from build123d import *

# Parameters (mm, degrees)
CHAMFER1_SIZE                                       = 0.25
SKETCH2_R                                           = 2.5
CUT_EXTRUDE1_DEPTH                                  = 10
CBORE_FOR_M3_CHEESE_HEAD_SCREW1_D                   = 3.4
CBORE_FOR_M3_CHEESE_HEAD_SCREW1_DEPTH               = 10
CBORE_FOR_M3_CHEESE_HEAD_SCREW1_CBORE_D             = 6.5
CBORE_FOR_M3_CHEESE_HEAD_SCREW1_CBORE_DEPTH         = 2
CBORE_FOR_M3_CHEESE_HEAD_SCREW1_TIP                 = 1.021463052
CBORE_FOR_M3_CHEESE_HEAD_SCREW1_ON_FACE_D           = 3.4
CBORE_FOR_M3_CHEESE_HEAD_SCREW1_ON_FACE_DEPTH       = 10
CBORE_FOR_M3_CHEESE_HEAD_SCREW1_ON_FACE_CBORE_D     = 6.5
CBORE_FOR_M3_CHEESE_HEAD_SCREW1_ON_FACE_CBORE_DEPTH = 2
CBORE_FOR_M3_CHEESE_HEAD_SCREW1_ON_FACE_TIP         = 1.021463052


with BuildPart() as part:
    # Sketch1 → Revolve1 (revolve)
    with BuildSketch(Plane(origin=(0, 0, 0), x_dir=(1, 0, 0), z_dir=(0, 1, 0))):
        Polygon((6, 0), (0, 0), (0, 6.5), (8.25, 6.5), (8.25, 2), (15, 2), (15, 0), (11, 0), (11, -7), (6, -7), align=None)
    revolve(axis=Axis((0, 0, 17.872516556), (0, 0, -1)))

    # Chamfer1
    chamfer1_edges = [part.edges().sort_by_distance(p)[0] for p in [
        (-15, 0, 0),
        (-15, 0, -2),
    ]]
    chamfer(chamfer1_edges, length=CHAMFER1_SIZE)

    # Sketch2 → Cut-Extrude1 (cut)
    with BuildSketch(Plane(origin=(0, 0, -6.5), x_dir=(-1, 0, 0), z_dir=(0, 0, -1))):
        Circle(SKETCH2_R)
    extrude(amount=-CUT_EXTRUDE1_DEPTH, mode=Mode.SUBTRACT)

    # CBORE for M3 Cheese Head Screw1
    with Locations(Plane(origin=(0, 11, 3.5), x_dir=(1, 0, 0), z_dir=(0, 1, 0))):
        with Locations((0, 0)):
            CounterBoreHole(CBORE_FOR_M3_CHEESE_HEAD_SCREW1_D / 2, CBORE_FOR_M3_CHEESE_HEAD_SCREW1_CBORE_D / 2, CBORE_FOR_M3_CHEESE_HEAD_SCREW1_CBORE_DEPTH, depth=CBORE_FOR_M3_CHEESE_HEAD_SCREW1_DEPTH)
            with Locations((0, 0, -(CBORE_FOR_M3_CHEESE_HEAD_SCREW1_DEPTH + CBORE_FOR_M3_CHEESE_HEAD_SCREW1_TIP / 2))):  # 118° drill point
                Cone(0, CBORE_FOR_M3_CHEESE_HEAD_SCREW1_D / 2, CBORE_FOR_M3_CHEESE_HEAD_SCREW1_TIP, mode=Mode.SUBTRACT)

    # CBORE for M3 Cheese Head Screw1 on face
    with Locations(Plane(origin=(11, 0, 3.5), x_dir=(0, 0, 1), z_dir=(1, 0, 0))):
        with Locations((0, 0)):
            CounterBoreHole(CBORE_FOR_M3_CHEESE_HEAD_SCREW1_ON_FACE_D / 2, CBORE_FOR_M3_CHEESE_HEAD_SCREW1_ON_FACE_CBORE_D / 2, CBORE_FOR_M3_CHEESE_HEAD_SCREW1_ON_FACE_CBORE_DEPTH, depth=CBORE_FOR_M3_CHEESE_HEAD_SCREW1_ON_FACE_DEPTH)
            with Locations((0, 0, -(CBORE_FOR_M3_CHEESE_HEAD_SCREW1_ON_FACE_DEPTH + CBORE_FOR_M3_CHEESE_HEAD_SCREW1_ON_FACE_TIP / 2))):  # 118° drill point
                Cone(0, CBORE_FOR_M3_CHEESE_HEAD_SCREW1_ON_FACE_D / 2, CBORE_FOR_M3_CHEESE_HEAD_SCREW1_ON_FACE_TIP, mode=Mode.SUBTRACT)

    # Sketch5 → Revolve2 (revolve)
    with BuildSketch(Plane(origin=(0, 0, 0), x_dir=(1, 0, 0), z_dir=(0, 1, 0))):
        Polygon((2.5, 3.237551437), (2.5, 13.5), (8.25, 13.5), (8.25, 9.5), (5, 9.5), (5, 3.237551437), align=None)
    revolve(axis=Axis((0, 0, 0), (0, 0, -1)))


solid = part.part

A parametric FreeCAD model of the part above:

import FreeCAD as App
import Part
import Sketcher


def edges_at(feature, points):
    """Names of the edges that pass closest to the given points."""
    edges = feature.Shape.Edges
    near = lambda p: min(range(len(edges)), key=lambda i: edges[i].distToShape(Part.Vertex(*p))[0])
    return sorted({f"Edge{near(p) + 1}" for p in points})

doc = App.newDocument("Part")
body = doc.addObject("PartDesign::Body", "Body")

# Sketch on XZ plane
sketch1 = body.newObject("Sketcher::SketchObject", "Sketch")
sketch1.AttachmentSupport = (doc.getObject("XZ_Plane"), [""])
sketch1.MapMode = "FlatFace"
sketch1.addGeometry([
    Part.LineSegment(App.Vector(0, 0, 0), App.Vector(6, 0, 0)),  # 0
    Part.LineSegment(App.Vector(6, 0, 0), App.Vector(6, 7, 0)),  # 1
    Part.LineSegment(App.Vector(6, 7, 0), App.Vector(11, 7, 0)),  # 2
    Part.LineSegment(App.Vector(11, 7, 0), App.Vector(11, 0, 0)),  # 3
    Part.LineSegment(App.Vector(11, 0, 0), App.Vector(15, 0, 0)),  # 4
    Part.LineSegment(App.Vector(15, 0, 0), App.Vector(15, -2, 0)),  # 5
    Part.LineSegment(App.Vector(15, -2, 0), App.Vector(8.2, -2, 0)),  # 6
    Part.LineSegment(App.Vector(8.2, -2, 0), App.Vector(8.2, -6.5, 0)),  # 7
    Part.LineSegment(App.Vector(8.2, -6.5, 0), App.Vector(0, -6.5, 0)),  # 8
    Part.LineSegment(App.Vector(0, -6.5, 0), App.Vector(0, 0, 0)),  # 9
], False)
sketch1.addConstraint([
    Sketcher.Constraint("Coincident", 0, 2, 1, 1),
    Sketcher.Constraint("Coincident", 1, 2, 2, 1),
    Sketcher.Constraint("Coincident", 2, 2, 3, 1),
    Sketcher.Constraint("Coincident", 3, 2, 4, 1),
    Sketcher.Constraint("Coincident", 4, 2, 5, 1),
    Sketcher.Constraint("Coincident", 5, 2, 6, 1),
    Sketcher.Constraint("Coincident", 6, 2, 7, 1),
    Sketcher.Constraint("Coincident", 7, 2, 8, 1),
    Sketcher.Constraint("Coincident", 8, 2, 9, 1),
    Sketcher.Constraint("Coincident", 9, 2, 0, 1),
    Sketcher.Constraint("Horizontal", 0),
    Sketcher.Constraint("Vertical", 1),
    Sketcher.Constraint("Horizontal", 2),
    Sketcher.Constraint("Vertical", 3),
    Sketcher.Constraint("Horizontal", 4),
    Sketcher.Constraint("Vertical", 5),
    Sketcher.Constraint("Horizontal", 6),
    Sketcher.Constraint("Vertical", 7),
    Sketcher.Constraint("Horizontal", 8),
    Sketcher.Constraint("Vertical", 9),
    Sketcher.Constraint("Coincident", 9, 2, -1, 1),
    Sketcher.Constraint("PointOnObject", 3, 2, -1),
    Sketcher.Constraint("DistanceX", 0, 1, 0, 2, 6.0),
    Sketcher.Constraint("DistanceX", 2, 1, 2, 2, 5.0),
    Sketcher.Constraint("DistanceX", 4, 1, 4, 2, 4.0),
    Sketcher.Constraint("DistanceY", 1, 1, 1, 2, 7.0),
    Sketcher.Constraint("DistanceY", 5, 2, 5, 1, 2.0),
    Sketcher.Constraint("DistanceY", 7, 2, 7, 1, 4.5),
    Sketcher.Constraint("DistanceX", 6, 2, 6, 1, 6.75),
])
revolution = body.newObject("PartDesign::Revolution", "Revolution")
revolution.Profile = sketch1
revolution.ReferenceAxis = (sketch1, ["V_Axis"])
revolution.Angle = 360
doc.recompute()

chamfer = body.newObject("PartDesign::Chamfer", "Chamfer")
chamfer.Base = (revolution, edges_at(revolution, [(-15, 0, 0), (-15, 0, -2)]))
chamfer.Size = 0.25

# Sketch on XY plane
sketch2 = body.newObject("Sketcher::SketchObject", "Sketch001")
sketch2.AttachmentSupport = (doc.getObject("XY_Plane"), [""])
sketch2.MapMode = "FlatFace"
sketch2.AttachmentOffset = App.Placement(App.Vector(0, 0, -6.5), App.Rotation())
sketch2.addGeometry(Part.Circle(App.Vector(0, 0, 0), App.Vector(0, 0, 1), 2.5), False)
sketch2.addConstraint([
    Sketcher.Constraint("Coincident", 0, 3, -1, 1),
    Sketcher.Constraint("Diameter", 0, 5.0),
])
pocket1 = body.newObject("PartDesign::Pocket", "Pocket")
pocket1.Profile = sketch2
pocket1.Length = 10
pocket1.Reversed = True

# Sketch on XZ plane
sketch3 = body.newObject("Sketcher::SketchObject", "Sketch002")
sketch3.AttachmentSupport = (doc.getObject("XZ_Plane"), [""])
sketch3.MapMode = "FlatFace"
sketch3.AttachmentOffset = App.Placement(App.Vector(0, 0, -11), App.Rotation())
sketch3.addGeometry(Part.Circle(App.Vector(0, 3.5, 0), App.Vector(0, 0, 1), 1.7), False)
sketch3.addConstraint([
    Sketcher.Constraint("PointOnObject", 0, 3, -2),
    Sketcher.Constraint("Diameter", 0, 3.4),
    Sketcher.Constraint("DistanceY", -1, 1, 0, 3, 3.5),
])
doc.recompute()
hole = body.newObject("PartDesign::Hole", "Hole")
hole.Profile = sketch3
hole.ThreadType = "None"
hole.Diameter = 3.4
hole.DepthType = "Dimension"
hole.Depth = 10
hole.DrillPoint = "Angled"
hole.DrillPointAngle = 118
hole.HoleCutType = "Counterbore"
hole.HoleCutDiameter = 6.5
hole.HoleCutDepth = 2
hole.Reversed = True

# Sketch on YZ plane
sketch4 = body.newObject("Sketcher::SketchObject", "Sketch003")
sketch4.AttachmentSupport = (doc.getObject("YZ_Plane"), [""])
sketch4.MapMode = "FlatFace"
sketch4.AttachmentOffset = App.Placement(App.Vector(0, 0, 11), App.Rotation())
sketch4.addGeometry(Part.Circle(App.Vector(0, 3.5, 0), App.Vector(0, 0, 1), 1.7), False)
sketch4.addConstraint([
    Sketcher.Constraint("PointOnObject", 0, 3, -2),
    Sketcher.Constraint("Diameter", 0, 3.4),
    Sketcher.Constraint("DistanceY", -1, 1, 0, 3, 3.5),
])
doc.recompute()
hole2 = body.newObject("PartDesign::Hole", "Hole001")
hole2.Profile = sketch4
hole2.ThreadType = "None"
hole2.Diameter = 3.4
hole2.DepthType = "Dimension"
hole2.Depth = 10
hole2.DrillPoint = "Angled"
hole2.DrillPointAngle = 118
hole2.HoleCutType = "Counterbore"
hole2.HoleCutDiameter = 6.5
hole2.HoleCutDepth = 2

# Sketch on XZ plane
sketch5 = body.newObject("Sketcher::SketchObject", "Sketch004")
sketch5.AttachmentSupport = (doc.getObject("XZ_Plane"), [""])
sketch5.MapMode = "FlatFace"
sketch5.addGeometry([
    Part.LineSegment(App.Vector(2.5, -13.5, 0), App.Vector(2.5, -3.2, 0)),  # 0
    Part.LineSegment(App.Vector(2.5, -3.2, 0), App.Vector(5, -3.2, 0)),  # 1
    Part.LineSegment(App.Vector(5, -3.2, 0), App.Vector(5, -9.5, 0)),  # 2
    Part.LineSegment(App.Vector(5, -9.5, 0), App.Vector(8.2, -9.5, 0)),  # 3
    Part.LineSegment(App.Vector(8.2, -9.5, 0), App.Vector(8.2, -13.5, 0)),  # 4
    Part.LineSegment(App.Vector(8.2, -13.5, 0), App.Vector(2.5, -13.5, 0)),  # 5
], False)
sketch5.addConstraint([
    Sketcher.Constraint("Coincident", 0, 2, 1, 1),
    Sketcher.Constraint("Coincident", 1, 2, 2, 1),
    Sketcher.Constraint("Coincident", 2, 2, 3, 1),
    Sketcher.Constraint("Coincident", 3, 2, 4, 1),
    Sketcher.Constraint("Coincident", 4, 2, 5, 1),
    Sketcher.Constraint("Coincident", 5, 2, 0, 1),
    Sketcher.Constraint("Vertical", 0),
    Sketcher.Constraint("Horizontal", 1),
    Sketcher.Constraint("Vertical", 2),
    Sketcher.Constraint("Horizontal", 3),
    Sketcher.Constraint("Vertical", 4),
    Sketcher.Constraint("Horizontal", 5),
    Sketcher.Constraint("DistanceY", 4, 2, 4, 1, 4.0),
    Sketcher.Constraint("DistanceX", 1, 1, 1, 2, 2.5),
    Sketcher.Constraint("DistanceX", -1, 1, 1, 2, 5.0),
    Sketcher.Constraint("DistanceX", 3, 1, 3, 2, 3.25),
    Sketcher.Constraint("DistanceY", 2, 2, -1, 1, 9.5),
    Sketcher.Constraint("DistanceY", 0, 1, 0, 2, 10.262449),
])
revolution2 = body.newObject("PartDesign::Revolution", "Revolution001")
revolution2.Profile = sketch5
revolution2.ReferenceAxis = (sketch5, ["V_Axis"])
revolution2.Angle = 360

doc.recompute()
